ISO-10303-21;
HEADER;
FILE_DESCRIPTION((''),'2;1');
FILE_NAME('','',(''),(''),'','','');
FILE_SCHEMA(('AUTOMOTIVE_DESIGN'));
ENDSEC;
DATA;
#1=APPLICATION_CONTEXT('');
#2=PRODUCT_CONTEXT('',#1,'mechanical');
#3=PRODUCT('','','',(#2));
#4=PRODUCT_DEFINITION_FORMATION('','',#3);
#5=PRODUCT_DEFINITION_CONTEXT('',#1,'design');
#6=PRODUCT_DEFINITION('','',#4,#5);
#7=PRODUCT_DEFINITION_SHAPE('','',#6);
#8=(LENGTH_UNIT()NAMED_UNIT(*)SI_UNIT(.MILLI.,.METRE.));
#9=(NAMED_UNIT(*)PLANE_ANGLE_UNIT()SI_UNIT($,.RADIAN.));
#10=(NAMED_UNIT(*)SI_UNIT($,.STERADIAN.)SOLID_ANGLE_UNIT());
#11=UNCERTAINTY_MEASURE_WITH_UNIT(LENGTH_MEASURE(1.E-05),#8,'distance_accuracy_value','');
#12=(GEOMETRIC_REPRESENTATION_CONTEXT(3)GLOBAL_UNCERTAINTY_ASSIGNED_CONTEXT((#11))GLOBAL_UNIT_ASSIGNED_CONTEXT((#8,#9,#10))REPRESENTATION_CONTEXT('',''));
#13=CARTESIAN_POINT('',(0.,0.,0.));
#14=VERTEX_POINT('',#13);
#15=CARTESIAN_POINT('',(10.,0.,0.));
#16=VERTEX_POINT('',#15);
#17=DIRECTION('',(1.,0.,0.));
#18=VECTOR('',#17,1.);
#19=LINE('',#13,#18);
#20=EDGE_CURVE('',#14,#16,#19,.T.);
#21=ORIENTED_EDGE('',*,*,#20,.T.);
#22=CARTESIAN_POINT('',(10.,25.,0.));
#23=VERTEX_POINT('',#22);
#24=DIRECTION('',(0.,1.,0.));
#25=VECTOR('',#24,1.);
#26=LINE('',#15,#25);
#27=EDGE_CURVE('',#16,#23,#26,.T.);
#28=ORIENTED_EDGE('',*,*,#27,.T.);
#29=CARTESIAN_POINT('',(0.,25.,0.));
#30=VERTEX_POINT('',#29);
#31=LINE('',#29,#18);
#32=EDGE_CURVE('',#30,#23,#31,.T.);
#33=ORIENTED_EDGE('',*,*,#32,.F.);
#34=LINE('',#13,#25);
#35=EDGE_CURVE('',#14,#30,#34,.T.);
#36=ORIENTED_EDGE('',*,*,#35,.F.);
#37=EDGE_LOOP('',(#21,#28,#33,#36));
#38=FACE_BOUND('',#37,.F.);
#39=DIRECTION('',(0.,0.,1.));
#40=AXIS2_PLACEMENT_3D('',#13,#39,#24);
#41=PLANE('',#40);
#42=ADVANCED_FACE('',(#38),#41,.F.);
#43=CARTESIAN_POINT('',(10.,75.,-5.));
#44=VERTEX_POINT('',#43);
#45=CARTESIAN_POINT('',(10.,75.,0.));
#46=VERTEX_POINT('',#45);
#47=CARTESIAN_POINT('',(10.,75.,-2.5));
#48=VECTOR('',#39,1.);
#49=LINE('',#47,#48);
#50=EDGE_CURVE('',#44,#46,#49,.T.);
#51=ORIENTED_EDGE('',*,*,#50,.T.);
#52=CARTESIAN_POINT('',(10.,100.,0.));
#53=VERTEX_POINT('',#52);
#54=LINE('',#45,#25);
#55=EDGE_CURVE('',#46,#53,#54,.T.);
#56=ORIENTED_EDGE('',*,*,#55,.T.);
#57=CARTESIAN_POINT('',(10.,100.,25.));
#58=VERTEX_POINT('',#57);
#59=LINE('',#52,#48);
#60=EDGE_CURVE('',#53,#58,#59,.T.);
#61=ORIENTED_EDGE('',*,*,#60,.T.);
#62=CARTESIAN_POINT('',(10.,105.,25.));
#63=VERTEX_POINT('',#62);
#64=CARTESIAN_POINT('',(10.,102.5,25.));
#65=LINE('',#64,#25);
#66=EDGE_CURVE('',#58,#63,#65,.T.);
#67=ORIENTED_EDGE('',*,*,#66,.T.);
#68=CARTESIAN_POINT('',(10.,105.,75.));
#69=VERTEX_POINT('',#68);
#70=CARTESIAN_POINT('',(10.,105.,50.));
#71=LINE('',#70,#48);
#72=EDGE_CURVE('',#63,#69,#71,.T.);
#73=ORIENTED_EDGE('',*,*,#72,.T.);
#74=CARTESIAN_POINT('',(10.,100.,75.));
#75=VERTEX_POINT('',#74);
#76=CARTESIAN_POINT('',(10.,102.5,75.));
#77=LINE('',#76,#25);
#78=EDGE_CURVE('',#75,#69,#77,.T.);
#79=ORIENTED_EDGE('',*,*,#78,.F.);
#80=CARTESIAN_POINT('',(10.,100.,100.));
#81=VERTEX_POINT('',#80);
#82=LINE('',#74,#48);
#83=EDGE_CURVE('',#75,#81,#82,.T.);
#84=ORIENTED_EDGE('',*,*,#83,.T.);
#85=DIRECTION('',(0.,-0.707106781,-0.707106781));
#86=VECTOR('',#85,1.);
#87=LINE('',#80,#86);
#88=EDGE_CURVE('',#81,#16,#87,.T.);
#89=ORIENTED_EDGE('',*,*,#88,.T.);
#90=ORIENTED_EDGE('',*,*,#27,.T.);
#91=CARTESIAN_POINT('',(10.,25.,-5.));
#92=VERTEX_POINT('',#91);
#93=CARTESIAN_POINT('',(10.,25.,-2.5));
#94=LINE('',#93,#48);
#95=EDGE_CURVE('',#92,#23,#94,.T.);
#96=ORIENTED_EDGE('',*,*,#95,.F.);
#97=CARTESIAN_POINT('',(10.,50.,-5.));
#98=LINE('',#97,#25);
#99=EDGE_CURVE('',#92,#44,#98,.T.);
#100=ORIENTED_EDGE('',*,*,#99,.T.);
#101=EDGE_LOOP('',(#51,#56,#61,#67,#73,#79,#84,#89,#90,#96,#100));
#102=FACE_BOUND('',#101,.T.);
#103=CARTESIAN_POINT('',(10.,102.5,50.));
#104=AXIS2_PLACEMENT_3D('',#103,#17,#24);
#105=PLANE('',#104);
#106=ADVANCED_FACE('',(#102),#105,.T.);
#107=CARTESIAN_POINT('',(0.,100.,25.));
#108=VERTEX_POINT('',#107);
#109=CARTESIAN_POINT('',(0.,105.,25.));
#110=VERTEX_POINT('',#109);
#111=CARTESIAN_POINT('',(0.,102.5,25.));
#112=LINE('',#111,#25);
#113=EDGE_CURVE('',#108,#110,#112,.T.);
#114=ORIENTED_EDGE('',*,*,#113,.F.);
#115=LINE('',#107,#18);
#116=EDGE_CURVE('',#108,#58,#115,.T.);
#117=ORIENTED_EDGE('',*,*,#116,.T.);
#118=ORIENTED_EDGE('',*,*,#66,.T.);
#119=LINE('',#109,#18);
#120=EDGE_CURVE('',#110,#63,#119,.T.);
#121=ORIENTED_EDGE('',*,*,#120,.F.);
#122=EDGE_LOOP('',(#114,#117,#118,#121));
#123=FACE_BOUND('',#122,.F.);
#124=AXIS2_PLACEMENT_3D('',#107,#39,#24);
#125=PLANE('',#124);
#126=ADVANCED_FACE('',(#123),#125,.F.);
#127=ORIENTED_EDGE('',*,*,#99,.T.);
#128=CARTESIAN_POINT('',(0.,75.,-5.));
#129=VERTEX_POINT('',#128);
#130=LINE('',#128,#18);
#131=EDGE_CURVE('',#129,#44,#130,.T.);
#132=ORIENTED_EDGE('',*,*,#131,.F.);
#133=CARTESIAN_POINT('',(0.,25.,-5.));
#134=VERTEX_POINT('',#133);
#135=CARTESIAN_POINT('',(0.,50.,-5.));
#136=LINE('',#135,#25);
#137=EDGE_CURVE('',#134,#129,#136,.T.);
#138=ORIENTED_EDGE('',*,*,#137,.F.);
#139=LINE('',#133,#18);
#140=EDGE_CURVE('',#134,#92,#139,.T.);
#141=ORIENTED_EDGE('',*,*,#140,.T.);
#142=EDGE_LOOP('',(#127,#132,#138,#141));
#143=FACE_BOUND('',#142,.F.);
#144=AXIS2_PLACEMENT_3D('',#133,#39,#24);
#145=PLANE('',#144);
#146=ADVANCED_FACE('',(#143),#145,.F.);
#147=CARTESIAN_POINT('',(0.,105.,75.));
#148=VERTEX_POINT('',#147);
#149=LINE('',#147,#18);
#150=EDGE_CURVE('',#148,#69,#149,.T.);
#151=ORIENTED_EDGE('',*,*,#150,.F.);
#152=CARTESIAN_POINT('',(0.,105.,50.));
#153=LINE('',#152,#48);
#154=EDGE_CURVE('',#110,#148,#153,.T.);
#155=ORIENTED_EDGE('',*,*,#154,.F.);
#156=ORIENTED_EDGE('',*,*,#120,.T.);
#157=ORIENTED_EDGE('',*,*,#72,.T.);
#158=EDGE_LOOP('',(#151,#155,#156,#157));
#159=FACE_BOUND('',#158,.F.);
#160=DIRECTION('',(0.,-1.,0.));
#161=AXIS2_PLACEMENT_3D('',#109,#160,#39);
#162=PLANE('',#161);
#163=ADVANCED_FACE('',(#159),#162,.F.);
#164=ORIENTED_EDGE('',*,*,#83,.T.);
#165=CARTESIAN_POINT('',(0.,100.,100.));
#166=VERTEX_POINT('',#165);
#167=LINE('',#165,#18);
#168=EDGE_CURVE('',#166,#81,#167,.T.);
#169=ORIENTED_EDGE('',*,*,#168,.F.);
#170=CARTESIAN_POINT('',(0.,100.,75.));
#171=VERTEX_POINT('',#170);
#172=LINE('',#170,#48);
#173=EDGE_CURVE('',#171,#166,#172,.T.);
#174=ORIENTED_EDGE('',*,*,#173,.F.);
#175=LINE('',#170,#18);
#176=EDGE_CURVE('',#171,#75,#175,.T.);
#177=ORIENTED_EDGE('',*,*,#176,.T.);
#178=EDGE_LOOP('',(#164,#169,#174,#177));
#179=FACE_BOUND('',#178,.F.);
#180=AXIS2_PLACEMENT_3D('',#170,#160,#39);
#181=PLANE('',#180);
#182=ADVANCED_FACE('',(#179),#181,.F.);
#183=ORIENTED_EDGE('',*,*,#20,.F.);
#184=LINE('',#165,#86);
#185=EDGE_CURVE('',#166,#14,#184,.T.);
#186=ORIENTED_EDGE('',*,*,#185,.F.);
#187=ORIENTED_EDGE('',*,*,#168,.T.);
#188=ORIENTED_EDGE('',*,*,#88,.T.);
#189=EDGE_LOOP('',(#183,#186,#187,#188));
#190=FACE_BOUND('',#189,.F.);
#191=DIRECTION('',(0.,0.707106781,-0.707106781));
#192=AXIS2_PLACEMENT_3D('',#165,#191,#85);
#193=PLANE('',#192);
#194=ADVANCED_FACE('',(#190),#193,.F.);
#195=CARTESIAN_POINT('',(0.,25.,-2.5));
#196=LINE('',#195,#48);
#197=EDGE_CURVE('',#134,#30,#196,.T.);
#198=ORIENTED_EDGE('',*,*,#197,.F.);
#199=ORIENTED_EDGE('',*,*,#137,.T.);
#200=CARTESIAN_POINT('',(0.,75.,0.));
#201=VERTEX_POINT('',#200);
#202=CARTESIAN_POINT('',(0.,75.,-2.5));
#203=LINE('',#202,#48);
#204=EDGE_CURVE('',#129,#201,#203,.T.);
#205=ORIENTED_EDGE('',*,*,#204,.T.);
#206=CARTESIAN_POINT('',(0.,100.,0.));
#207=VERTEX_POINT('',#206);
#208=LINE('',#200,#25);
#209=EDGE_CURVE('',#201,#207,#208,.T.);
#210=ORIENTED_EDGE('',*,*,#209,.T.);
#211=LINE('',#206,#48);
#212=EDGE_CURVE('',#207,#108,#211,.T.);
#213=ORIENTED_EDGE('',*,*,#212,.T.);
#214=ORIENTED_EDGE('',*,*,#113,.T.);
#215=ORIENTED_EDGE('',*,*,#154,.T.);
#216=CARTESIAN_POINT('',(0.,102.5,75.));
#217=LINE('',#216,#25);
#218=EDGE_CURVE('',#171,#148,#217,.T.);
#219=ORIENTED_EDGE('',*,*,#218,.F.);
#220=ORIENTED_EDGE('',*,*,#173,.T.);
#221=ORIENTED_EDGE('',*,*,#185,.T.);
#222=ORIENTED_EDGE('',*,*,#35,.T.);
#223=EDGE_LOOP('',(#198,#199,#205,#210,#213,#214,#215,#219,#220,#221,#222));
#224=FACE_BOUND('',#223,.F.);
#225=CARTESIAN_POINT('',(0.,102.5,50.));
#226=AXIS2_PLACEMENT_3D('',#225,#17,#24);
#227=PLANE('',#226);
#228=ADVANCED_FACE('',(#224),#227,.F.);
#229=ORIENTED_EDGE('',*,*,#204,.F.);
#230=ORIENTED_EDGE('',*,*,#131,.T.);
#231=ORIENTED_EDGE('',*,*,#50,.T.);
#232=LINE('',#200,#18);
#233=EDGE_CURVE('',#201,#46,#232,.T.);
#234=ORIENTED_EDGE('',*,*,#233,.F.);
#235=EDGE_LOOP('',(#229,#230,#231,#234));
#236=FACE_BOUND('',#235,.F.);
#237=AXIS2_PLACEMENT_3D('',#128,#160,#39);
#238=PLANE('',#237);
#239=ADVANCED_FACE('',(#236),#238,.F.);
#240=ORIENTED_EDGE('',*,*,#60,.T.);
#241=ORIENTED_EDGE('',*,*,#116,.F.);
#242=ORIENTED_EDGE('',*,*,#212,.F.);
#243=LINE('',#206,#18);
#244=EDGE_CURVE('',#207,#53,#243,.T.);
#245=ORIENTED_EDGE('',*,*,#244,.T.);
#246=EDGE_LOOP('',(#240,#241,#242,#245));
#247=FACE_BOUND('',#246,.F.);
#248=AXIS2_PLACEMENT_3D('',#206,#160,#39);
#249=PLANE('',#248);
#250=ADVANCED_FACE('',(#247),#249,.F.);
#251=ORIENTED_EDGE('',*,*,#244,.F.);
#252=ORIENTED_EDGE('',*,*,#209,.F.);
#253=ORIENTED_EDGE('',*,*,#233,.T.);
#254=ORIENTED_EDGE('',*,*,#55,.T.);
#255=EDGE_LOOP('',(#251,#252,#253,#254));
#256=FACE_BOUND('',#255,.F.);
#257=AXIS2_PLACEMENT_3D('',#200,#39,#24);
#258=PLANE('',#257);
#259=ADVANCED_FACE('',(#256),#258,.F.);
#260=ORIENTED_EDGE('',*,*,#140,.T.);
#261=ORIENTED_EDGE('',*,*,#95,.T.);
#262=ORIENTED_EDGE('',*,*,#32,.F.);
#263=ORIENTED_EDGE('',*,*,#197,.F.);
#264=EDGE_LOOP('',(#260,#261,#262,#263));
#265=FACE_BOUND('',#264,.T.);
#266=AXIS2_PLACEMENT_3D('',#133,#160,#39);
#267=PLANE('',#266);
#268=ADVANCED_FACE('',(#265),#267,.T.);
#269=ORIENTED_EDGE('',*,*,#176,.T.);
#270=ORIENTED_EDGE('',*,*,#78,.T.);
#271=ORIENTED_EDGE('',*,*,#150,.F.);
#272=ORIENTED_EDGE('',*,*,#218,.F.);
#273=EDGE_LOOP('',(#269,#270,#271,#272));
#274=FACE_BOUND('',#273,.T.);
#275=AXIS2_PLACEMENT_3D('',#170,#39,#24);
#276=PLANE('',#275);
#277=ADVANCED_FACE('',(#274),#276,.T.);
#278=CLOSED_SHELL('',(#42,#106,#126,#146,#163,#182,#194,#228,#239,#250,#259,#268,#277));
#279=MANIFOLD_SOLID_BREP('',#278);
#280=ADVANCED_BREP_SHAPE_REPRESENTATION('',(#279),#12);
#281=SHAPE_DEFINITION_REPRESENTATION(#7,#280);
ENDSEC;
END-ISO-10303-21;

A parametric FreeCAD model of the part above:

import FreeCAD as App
import Part
import Sketcher
Q = App.Units.Quantity

doc = App.newDocument("Part")
body = doc.addObject("PartDesign::Body", "Body")

# Sketch on YZ plane
sketch1 = body.newObject("Sketcher::SketchObject", "Sketch")
sketch1.AttachmentSupport = (doc.getObject("YZ_Plane"), [""])
sketch1.MapMode = "FlatFace"
sketch1.addGeometry(Part.LineSegment(App.Vector(100, 25, 0), App.Vector(105, 25, 0)), False)
sketch1.addGeometry(Part.LineSegment(App.Vector(105, 25, 0), App.Vector(105, 75, 0)), False)
sketch1.addGeometry(Part.LineSegment(App.Vector(105, 75, 0), App.Vector(100, 75, 0)), False)
sketch1.addGeometry(Part.LineSegment(App.Vector(100, 75, 0), App.Vector(100, 100, 0)), False)
sketch1.addGeometry(Part.LineSegment(App.Vector(100, 100, 0), App.Vector(0, 0, 0)), False)
sketch1.addGeometry(Part.LineSegment(App.Vector(0, 0, 0), App.Vector(25, 0, 0)), False)
sketch1.addGeometry(Part.LineSegment(App.Vector(25, 0, 0), App.Vector(25, -5, 0)), False)
sketch1.addGeometry(Part.LineSegment(App.Vector(25, -5, 0), App.Vector(75, -5, 0)), False)
sketch1.addGeometry(Part.LineSegment(App.Vector(75, -5, 0), App.Vector(75, 0, 0)), False)
sketch1.addGeometry(Part.LineSegment(App.Vector(75, 0, 0), App.Vector(100, 0, 0)), False)
sketch1.addGeometry(Part.LineSegment(App.Vector(100, 0, 0), App.Vector(100, 25, 0)), False)
sketch1.addConstraint(Sketcher.Constraint("Coincident", 0, 2, 1, 1))
sketch1.addConstraint(Sketcher.Constraint("Coincident", 1, 2, 2, 1))
sketch1.addConstraint(Sketcher.Constraint("Coincident", 2, 2, 3, 1))
sketch1.addConstraint(Sketcher.Constraint("Coincident", 3, 2, 4, 1))
sketch1.addConstraint(Sketcher.Constraint("Coincident", 4, 2, 5, 1))
sketch1.addConstraint(Sketcher.Constraint("Coincident", 5, 2, 6, 1))
sketch1.addConstraint(Sketcher.Constraint("Coincident", 6, 2, 7, 1))
sketch1.addConstraint(Sketcher.Constraint("Coincident", 7, 2, 8, 1))
sketch1.addConstraint(Sketcher.Constraint("Coincident", 8, 2, 9, 1))
sketch1.addConstraint(Sketcher.Constraint("Coincident", 9, 2, 10, 1))
sketch1.addConstraint(Sketcher.Constraint("Coincident", 10, 2, 0, 1))
sketch1.addConstraint(Sketcher.Constraint("Horizontal", 0))
sketch1.addConstraint(Sketcher.Constraint("Vertical", 1))
sketch1.addConstraint(Sketcher.Constraint("Horizontal", 2))
sketch1.addConstraint(Sketcher.Constraint("Vertical", 3))
sketch1.addConstraint(Sketcher.Constraint("Horizontal", 5))
sketch1.addConstraint(Sketcher.Constraint("Vertical", 6))
sketch1.addConstraint(Sketcher.Constraint("Horizontal", 7))
sketch1.addConstraint(Sketcher.Constraint("Vertical", 8))
sketch1.addConstraint(Sketcher.Constraint("Horizontal", 9))
sketch1.addConstraint(Sketcher.Constraint("Vertical", 10))
sketch1.addConstraint(Sketcher.Constraint("Coincident", 4, 2, -1, 1))
sketch1.addConstraint(Sketcher.Constraint("PointOnObject", 8, 2, -1))
sketch1.addConstraint(Sketcher.Constraint("Vertical", 3, 2, 9, 2))
sketch1.addConstraint(Sketcher.Constraint("Equal", 5, 9))
sketch1.addConstraint(Sketcher.Constraint("Equal", 7, 1))
sketch1.addConstraint(Sketcher.Constraint("Equal", 9, 3))
sketch1.addConstraint(Sketcher.Constraint("Equal", 2, 6))
sketch1.addConstraint(Sketcher.Constraint("Equal", 3, 10))
sketch1.addConstraint(Sketcher.Constraint("DistanceX", 0, 1, 0, 2, Q("5 mm")))
sketch1.addConstraint(Sketcher.Constraint("DistanceX", 5, 1, 5, 2, Q("25 mm")))
sketch1.addConstraint(Sketcher.Constraint("DistanceX", 7, 1, 7, 2, Q("50 mm")))
pad1 = body.newObject("PartDesign::Pad", "Pad")
pad1.Profile = sketch1
pad1.Length = 10

doc.recompute()
